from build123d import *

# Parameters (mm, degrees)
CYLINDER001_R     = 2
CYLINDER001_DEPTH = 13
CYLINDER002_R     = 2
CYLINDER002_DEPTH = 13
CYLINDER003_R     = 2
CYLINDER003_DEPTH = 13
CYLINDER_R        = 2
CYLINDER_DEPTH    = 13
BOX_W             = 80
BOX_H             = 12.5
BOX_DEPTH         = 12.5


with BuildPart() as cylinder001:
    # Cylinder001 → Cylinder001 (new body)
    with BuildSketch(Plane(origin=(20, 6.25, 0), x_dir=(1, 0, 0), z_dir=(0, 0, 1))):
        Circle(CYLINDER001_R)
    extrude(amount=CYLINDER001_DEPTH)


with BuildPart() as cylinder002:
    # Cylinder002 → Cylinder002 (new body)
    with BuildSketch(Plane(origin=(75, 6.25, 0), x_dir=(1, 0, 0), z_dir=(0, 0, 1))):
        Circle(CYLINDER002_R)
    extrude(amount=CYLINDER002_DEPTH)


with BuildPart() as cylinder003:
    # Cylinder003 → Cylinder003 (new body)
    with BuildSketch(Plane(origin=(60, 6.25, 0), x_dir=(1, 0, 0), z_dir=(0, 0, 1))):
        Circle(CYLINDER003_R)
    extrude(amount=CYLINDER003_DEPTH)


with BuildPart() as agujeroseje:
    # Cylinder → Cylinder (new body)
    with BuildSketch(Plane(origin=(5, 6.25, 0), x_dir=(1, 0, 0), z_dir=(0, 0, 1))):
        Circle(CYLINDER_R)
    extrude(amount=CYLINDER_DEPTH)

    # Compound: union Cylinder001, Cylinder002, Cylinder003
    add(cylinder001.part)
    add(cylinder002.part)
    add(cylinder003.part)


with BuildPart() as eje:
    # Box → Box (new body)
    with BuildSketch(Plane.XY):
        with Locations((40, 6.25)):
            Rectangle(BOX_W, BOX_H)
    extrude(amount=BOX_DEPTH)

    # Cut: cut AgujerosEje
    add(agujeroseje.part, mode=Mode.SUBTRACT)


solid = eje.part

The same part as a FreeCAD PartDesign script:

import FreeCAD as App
import Part
import Sketcher

V = App.Vector
Q = App.Units.Quantity


def add_polygon(sketch, points):
    """Adds a closed chain of lines whose ends are joined by coincident constraints."""
    first, n = sketch.GeometryCount, len(points)
    for a, b in zip(points, points[1:] + points[:1]):
        sketch.addGeometry(Part.LineSegment(App.Vector(*a, 0), App.Vector(*b, 0)), False)
    for i in range(n):
        sketch.addConstraint(Sketcher.Constraint("Coincident", first + i, 2, first + (i + 1) % n, 1))

doc = App.newDocument("Part")
body = doc.addObject("PartDesign::Body", "Body")

# Sketch on XY plane
sketch1 = body.newObject("Sketcher::SketchObject", "Sketch")
sketch1.AttachmentSupport = (doc.getObject("XY_Plane"), [""])
sketch1.MapMode = "FlatFace"
sketch1.addGeometry(Part.Circle(V(20, 6.25, 0), V(0, 0, 1), 2), False)
sketch1.addConstraint([
    Sketcher.Constraint("Diameter", 0, Q("4 mm")),
    Sketcher.Constraint("DistanceX", -1, 1, 0, 3, Q("20 mm")),
    Sketcher.Constraint("DistanceY", -1, 1, 0, 3, Q("6.25 mm")),
])
pad1 = body.newObject("PartDesign::Pad", "Pad")
pad1.Profile = sketch1
pad1.Length = 13
body2 = doc.addObject("PartDesign::Body", "Body001")

# Sketch on XY plane
sketch2 = body2.newObject("Sketcher::SketchObject", "Sketch001")
sketch2.AttachmentSupport = (doc.getObject("XY_Plane001"), [""])
sketch2.MapMode = "FlatFace"
sketch2.addGeometry(Part.Circle(V(75, 6.25, 0), V(0, 0, 1), 2), False)
sketch2.addConstraint([
    Sketcher.Constraint("Diameter", 0, Q("4 mm")),
    Sketcher.Constraint("DistanceX", -1, 1, 0, 3, Q("75 mm")),
    Sketcher.Constraint("DistanceY", -1, 1, 0, 3, Q("6.25 mm")),
])
pad2 = body2.newObject("PartDesign::Pad", "Pad001")
pad2.Profile = sketch2
pad2.Length = 13
body3 = doc.addObject("PartDesign::Body", "Body002")

# Sketch on XY plane
sketch3 = body3.newObject("Sketcher::SketchObject", "Sketch002")
sketch3.AttachmentSupport = (doc.getObject("XY_Plane002"), [""])
sketch3.MapMode = "FlatFace"
sketch3.addGeometry(Part.Circle(V(60, 6.25, 0), V(0, 0, 1), 2), False)
sketch3.addConstraint([
    Sketcher.Constraint("Diameter", 0, Q("4 mm")),
    Sketcher.Constraint("DistanceX", -1, 1, 0, 3, Q("60 mm")),
    Sketcher.Constraint("DistanceY", -1, 1, 0, 3, Q("6.25 mm")),
])
pad3 = body3.newObject("PartDesign::Pad", "Pad002")
pad3.Profile = sketch3
pad3.Length = 13
body4 = doc.addObject("PartDesign::Body", "Body003")
body4.AllowCompound = True

# Sketch on XY plane
sketch4 = body4.newObject("Sketcher::SketchObject", "Sketch003")
sketch4.AttachmentSupport = (doc.getObject("XY_Plane003"), [""])
sketch4.MapMode = "FlatFace"
sketch4.addGeometry(Part.Circle(V(5, 6.25, 0), V(0, 0, 1), 2), False)
sketch4.addConstraint([
    Sketcher.Constraint("Diameter", 0, Q("4 mm")),
    Sketcher.Constraint("DistanceX", -1, 1, 0, 3, Q("5 mm")),
    Sketcher.Constraint("DistanceY", -1, 1, 0, 3, Q("6.25 mm")),
])
pad4 = body4.newObject("PartDesign::Pad", "Pad003")
pad4.Profile = sketch4
pad4.Length = 13
doc.recompute()

boolean = body4.newObject("PartDesign::Boolean", "Boolean")
boolean.Type = "Fuse"
boolean.addObjects([body])
doc.recompute()

boolean2 = body4.newObject("PartDesign::Boolean", "Boolean001")
boolean2.Type = "Fuse"
boolean2.addObjects([body2])
doc.recompute()

boolean3 = body4.newObject("PartDesign::Boolean", "Boolean002")
boolean3.Type = "Fuse"
boolean3.addObjects([body3])
body5 = doc.addObject("PartDesign::Body", "Body004")

# Sketch on XY plane
sketch5 = body5.newObject("Sketcher::SketchObject", "Sketch004")
sketch5.AttachmentSupport = (doc.getObject("XY_Plane004"), [""])
sketch5.MapMode = "FlatFace"
add_polygon(sketch5, [(0, 12.5), (0, 0), (80, 0), (80, 12.5)])  # lines 0-3
sketch5.addConstraint([
    Sketcher.Constraint("Vertical", 0),
    Sketcher.Constraint("Horizontal", 1),
    Sketcher.Constraint("Vertical", 2),
    Sketcher.Constraint("Horizontal", 3),
    Sketcher.Constraint("Coincident", 0, 2, -1, 1),
    Sketcher.Constraint("DistanceX", 1, 1, 1, 2, Q("80 mm")),
    Sketcher.Constraint("DistanceY", 0, 2, 0, 1, Q("12.5 mm")),
])
pad5 = body5.newObject("PartDesign::Pad", "Pad004")
pad5.Profile = sketch5
pad5.Length = 12.5
doc.recompute()

boolean4 = body5.newObject("PartDesign::Boolean", "Boolean003")
boolean4.Type = "Cut"
boolean4.addObjects([body4])

doc.recompute()
